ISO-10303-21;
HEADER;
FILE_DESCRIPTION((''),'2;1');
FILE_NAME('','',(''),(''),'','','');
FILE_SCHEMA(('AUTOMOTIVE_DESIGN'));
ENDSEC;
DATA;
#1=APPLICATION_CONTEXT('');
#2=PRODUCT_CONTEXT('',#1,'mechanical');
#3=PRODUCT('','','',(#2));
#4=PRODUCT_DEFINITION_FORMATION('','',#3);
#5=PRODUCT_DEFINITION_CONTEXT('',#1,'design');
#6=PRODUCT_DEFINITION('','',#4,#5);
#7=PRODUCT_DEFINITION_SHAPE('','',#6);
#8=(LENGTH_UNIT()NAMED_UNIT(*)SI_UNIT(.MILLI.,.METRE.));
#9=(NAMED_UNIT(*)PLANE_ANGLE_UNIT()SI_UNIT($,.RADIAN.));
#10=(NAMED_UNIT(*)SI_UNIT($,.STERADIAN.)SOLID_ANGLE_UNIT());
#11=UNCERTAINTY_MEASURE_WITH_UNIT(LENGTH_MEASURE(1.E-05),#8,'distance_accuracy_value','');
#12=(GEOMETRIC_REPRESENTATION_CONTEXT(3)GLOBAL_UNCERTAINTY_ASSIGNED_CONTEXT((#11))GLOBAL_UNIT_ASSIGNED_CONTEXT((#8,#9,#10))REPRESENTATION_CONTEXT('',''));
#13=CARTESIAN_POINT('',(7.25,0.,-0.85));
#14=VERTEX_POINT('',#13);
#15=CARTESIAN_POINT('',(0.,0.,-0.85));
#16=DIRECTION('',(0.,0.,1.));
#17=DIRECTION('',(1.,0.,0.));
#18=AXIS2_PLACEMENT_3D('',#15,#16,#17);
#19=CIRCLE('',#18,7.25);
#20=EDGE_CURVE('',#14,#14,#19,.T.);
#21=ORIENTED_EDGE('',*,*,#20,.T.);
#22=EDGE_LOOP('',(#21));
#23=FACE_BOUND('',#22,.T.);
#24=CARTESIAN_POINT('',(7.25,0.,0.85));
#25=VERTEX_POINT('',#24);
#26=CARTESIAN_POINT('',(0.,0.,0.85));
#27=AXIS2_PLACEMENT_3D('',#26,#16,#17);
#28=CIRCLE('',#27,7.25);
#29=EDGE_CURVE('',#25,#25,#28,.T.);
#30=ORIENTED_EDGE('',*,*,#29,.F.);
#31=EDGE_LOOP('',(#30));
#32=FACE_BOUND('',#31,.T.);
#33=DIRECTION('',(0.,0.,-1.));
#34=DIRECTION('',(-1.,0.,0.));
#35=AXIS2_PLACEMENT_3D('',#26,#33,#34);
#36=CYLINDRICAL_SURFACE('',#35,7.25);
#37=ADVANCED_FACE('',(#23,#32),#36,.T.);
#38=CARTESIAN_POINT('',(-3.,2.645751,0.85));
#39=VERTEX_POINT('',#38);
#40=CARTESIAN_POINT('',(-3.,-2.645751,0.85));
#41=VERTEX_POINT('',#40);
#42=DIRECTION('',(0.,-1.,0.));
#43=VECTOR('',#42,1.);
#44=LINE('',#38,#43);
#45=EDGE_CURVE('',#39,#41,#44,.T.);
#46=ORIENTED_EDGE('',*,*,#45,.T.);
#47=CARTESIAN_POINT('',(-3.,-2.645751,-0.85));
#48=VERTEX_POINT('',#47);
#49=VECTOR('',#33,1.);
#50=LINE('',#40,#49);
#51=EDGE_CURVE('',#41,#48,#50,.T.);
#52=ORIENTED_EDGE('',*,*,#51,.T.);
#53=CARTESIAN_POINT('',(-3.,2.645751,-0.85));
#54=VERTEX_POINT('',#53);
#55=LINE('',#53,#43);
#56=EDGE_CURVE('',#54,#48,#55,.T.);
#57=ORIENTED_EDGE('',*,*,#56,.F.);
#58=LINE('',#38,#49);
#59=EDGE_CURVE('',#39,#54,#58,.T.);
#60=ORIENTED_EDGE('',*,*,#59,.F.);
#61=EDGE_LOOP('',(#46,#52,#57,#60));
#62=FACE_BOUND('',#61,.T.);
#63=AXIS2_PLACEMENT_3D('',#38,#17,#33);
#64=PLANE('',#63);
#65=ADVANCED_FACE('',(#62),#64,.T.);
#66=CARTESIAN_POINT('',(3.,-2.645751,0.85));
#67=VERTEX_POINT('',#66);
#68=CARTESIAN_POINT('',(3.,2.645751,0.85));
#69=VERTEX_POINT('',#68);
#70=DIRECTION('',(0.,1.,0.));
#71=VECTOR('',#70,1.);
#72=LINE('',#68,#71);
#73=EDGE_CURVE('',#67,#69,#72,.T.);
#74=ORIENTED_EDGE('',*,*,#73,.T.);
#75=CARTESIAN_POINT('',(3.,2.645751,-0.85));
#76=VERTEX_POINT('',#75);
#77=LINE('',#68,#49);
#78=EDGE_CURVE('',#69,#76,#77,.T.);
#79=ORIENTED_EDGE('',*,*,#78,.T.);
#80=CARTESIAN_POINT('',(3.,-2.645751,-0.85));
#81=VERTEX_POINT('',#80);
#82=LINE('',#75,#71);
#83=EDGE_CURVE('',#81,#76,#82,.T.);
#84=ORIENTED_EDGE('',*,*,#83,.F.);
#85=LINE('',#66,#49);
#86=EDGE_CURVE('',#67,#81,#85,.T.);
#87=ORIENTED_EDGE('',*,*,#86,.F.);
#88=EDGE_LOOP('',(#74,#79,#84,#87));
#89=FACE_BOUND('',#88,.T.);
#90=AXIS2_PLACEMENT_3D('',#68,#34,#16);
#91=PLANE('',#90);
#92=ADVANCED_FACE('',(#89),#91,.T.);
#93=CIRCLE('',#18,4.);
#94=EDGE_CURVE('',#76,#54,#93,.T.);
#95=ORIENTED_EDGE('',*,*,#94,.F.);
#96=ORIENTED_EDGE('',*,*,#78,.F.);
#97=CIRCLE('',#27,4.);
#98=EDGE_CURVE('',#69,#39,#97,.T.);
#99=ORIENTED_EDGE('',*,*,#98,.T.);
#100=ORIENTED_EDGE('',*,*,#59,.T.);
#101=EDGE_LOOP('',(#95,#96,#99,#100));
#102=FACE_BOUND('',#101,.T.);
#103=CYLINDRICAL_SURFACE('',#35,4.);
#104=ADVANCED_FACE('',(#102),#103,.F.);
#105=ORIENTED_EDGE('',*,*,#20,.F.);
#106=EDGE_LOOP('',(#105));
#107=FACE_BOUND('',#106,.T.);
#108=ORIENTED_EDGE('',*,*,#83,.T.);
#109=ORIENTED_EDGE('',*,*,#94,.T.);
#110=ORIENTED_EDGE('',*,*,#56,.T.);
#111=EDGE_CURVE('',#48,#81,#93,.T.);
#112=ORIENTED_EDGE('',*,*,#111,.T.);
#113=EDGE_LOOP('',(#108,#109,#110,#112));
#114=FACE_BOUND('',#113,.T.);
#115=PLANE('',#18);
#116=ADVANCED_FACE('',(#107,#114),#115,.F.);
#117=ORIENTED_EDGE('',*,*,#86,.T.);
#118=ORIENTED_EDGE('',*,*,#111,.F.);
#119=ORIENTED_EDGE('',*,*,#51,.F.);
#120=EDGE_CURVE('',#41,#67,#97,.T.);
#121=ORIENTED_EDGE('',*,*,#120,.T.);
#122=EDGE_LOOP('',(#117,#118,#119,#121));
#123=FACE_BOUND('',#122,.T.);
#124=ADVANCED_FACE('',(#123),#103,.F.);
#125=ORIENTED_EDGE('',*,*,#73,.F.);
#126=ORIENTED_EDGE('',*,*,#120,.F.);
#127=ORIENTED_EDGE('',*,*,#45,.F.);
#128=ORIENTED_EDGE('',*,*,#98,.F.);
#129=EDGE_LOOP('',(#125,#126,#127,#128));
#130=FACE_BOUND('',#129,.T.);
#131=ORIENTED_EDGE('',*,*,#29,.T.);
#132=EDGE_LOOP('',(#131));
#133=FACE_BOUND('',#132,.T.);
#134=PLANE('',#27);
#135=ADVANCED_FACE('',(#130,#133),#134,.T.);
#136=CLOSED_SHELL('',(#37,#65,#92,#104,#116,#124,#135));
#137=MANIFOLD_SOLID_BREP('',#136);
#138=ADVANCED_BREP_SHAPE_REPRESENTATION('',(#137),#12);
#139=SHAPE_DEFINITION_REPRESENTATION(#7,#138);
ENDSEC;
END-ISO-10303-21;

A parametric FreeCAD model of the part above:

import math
import FreeCAD as App
import Part
import Sketcher
Q = App.Units.Quantity

doc = App.newDocument("Part")
body = doc.addObject("PartDesign::Body", "Body")

sketch1 = body.newObject("Sketcher::SketchObject", "Sketch")
sketch1.AttachmentSupport = (doc.getObject("XY_Plane"), [""])
sketch1.MapMode = "FlatFace"
sketch1.addGeometry([
    Part.Circle(App.Vector(0, 0, 0), App.Vector(0, 0, 1), 7.25),
    Part.LineSegment(App.Vector(-3, -2.645751, 0), App.Vector(-3, 2.645751, 0)),
    Part.ArcOfCircle(Part.Circle(App.Vector(0, 0, 0), App.Vector(0, 0, 1), 4), math.radians(41.409622), math.radians(138.590378)),
    Part.LineSegment(App.Vector(3, 2.645751, 0), App.Vector(3, -2.645751, 0)),
    Part.ArcOfCircle(Part.Circle(App.Vector(0, 0, 0), App.Vector(0, 0, 1), 4), math.radians(-138.590378), math.radians(-41.409622)),
], False)
sketch1.addConstraint([
    Sketcher.Constraint("Coincident", 1, 2, 2, 2),
    Sketcher.Constraint("Coincident", 2, 1, 3, 1),
    Sketcher.Constraint("Coincident", 3, 2, 4, 2),
    Sketcher.Constraint("Coincident", 4, 1, 1, 1),
    Sketcher.Constraint("Vertical", 1),
    Sketcher.Constraint("Vertical", 3),
    Sketcher.Constraint("Coincident", 0, 3, -1, 1),
    Sketcher.Constraint("Coincident", 2, 3, -1, 1),
    Sketcher.Constraint("Coincident", 4, 3, -1, 1),
    Sketcher.Constraint("Equal", 2, 4),
    Sketcher.Constraint("Horizontal", 1, 2, 2, 1),
    Sketcher.Constraint("Radius", 2, Q("4 mm")),
    Sketcher.Constraint("Diameter", 0, Q("14.5 mm")),
    Sketcher.Constraint("DistanceX", 1, 2, -1, 1, Q("3 mm")),
])
pad1 = body.newObject("PartDesign::Pad", "Pad")
pad1.Profile = sketch1
pad1.Length = 1.7
pad1.Midplane = True

doc.recompute()
